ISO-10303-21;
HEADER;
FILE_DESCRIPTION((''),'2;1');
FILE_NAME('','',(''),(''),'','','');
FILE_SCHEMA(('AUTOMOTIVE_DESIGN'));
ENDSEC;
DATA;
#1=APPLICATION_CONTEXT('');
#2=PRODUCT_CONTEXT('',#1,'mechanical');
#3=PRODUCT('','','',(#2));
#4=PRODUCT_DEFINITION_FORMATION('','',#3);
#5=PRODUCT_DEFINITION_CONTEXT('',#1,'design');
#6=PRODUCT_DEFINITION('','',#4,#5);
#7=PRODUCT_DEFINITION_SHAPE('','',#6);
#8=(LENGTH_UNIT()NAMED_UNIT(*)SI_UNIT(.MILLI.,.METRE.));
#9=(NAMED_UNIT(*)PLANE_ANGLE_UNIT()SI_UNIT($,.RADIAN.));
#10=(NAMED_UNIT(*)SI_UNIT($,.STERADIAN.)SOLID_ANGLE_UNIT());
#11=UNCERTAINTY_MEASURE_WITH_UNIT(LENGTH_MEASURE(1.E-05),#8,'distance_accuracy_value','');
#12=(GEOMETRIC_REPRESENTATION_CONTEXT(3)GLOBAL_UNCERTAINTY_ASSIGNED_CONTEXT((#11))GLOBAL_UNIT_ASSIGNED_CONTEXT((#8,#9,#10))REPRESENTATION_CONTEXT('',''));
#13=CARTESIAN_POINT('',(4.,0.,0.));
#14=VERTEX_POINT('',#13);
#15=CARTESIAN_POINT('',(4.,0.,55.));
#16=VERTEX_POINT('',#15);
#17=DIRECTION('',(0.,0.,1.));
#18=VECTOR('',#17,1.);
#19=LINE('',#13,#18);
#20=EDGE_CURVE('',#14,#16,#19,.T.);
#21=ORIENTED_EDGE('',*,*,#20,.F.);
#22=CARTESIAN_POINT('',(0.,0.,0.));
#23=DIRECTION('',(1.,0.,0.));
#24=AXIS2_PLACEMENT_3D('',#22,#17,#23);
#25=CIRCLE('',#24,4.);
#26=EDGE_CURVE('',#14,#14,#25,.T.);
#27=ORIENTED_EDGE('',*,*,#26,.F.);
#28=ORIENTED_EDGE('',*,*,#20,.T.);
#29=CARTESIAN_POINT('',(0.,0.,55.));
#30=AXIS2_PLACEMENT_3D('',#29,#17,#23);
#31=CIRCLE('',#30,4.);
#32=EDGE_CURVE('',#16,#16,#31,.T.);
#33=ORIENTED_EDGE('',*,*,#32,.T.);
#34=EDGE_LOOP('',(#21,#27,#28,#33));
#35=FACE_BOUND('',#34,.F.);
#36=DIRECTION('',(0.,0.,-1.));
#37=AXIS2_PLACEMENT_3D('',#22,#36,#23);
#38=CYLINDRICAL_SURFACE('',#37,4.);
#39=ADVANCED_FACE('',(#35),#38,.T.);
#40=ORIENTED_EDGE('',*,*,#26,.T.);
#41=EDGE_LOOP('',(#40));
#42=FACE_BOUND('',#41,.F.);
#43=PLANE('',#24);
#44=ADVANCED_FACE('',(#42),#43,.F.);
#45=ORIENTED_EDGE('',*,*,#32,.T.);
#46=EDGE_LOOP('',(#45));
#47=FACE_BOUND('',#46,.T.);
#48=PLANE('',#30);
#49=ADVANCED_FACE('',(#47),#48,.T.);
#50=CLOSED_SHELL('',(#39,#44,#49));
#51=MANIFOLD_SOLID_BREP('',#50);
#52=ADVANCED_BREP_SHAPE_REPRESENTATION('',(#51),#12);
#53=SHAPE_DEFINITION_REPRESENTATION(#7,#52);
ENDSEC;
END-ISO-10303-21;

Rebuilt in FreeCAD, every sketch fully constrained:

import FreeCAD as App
import Part
import Sketcher
Q = App.Units.Quantity

doc = App.newDocument("Part")
body = doc.addObject("PartDesign::Body", "Body")

# Sketch on XY plane
sketch1 = body.newObject("Sketcher::SketchObject", "Sketch")
sketch1.AttachmentSupport = (doc.getObject("XY_Plane"), [""])
sketch1.MapMode = "FlatFace"
sketch1.addGeometry(Part.Circle(App.Vector(0, 0, 0), App.Vector(0, 0, 1), 4), False)
sketch1.addConstraint([
    Sketcher.Constraint("Coincident", 0, 3, -1, 1),
    Sketcher.Constraint("Diameter", 0, Q("8 mm")),
])
pad1 = body.newObject("PartDesign::Pad", "Pad")
pad1.Profile = sketch1
pad1.Length = 55

doc.recompute()
